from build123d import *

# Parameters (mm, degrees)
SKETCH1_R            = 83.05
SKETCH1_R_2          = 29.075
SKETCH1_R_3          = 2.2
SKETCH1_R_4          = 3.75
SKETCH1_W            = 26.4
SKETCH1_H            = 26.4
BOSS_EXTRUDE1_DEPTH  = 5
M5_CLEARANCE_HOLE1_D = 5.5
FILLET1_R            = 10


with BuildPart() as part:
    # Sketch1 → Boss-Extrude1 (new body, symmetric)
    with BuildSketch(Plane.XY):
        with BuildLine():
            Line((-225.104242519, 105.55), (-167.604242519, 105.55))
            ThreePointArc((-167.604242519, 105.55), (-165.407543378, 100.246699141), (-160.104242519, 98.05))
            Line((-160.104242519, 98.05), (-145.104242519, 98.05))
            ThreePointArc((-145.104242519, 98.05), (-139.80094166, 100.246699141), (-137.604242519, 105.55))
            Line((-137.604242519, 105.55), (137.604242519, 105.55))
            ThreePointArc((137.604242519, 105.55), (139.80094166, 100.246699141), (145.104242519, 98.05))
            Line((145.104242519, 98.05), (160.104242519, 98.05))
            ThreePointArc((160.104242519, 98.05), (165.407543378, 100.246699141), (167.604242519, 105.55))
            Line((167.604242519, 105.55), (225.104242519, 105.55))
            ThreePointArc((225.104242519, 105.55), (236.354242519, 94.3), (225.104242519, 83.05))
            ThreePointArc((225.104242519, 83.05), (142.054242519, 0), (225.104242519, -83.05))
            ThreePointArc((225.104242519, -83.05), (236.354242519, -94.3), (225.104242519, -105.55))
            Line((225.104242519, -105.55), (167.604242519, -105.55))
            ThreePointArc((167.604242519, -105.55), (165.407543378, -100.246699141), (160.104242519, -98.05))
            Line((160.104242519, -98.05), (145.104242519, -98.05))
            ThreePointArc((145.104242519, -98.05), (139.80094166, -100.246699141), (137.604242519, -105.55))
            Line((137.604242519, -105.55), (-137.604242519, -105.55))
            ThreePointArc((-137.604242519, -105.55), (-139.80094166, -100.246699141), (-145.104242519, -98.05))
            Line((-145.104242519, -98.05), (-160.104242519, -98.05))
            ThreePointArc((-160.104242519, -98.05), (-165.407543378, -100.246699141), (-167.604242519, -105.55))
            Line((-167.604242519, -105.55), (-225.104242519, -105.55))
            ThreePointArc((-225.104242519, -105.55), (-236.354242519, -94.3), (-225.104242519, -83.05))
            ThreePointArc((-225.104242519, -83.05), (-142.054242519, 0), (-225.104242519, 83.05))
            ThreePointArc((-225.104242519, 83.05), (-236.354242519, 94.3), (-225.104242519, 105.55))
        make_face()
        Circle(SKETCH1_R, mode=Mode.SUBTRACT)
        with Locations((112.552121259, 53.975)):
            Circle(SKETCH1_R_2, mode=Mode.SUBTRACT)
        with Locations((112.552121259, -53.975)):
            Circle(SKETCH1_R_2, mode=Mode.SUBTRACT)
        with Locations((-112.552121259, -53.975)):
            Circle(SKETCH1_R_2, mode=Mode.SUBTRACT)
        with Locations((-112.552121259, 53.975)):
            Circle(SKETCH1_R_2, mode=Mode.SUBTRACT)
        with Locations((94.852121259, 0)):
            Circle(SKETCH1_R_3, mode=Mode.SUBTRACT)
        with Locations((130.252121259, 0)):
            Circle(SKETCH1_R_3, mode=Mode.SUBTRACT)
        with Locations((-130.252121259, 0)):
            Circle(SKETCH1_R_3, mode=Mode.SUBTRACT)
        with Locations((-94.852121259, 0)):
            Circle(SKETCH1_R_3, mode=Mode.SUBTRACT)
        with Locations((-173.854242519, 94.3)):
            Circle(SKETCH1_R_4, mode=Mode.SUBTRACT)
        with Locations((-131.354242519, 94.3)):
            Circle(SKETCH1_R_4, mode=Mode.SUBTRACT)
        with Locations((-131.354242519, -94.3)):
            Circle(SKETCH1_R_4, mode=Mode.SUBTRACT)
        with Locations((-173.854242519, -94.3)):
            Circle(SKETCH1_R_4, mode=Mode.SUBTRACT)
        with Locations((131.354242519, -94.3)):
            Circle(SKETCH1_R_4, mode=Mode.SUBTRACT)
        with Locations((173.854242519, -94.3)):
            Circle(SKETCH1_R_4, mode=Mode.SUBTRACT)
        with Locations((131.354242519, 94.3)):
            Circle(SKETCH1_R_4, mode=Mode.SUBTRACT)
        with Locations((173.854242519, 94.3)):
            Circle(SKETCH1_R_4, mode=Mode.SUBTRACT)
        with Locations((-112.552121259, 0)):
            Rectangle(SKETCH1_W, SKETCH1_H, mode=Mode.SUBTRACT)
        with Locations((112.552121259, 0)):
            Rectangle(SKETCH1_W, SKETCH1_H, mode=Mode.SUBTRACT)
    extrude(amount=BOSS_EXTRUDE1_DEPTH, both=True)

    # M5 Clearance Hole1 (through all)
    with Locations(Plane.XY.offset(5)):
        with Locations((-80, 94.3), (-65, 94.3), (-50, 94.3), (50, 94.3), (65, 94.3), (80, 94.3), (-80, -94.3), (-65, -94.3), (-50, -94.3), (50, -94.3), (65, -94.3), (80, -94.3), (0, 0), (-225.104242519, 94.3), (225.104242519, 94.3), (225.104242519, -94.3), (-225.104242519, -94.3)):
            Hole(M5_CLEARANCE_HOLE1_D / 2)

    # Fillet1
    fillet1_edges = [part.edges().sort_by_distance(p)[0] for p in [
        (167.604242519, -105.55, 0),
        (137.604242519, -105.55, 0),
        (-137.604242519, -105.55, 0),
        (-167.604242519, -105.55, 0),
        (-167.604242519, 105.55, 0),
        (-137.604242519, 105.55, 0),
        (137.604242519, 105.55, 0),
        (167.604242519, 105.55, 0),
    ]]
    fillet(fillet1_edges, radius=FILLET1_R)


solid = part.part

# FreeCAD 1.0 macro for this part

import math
import FreeCAD as App
import Part
import Sketcher
from FreeCAD import Vector
Q = App.Units.Quantity


def edges_at(feature, points):
    """Names of the edges that pass closest to the given points."""
    edges = feature.Shape.Edges
    near = lambda p: min(range(len(edges)), key=lambda i: edges[i].distToShape(Part.Vertex(*p))[0])
    return sorted({f"Edge{near(p) + 1}" for p in points})

doc = App.newDocument("Part")
params = doc.addObject("Spreadsheet::Sheet", "Params")
for row, (alias, value) in enumerate([
    ("sketch1_diameter", "7.5 mm"),
    ("sketch1_diameter2", "4.4 mm"),
    ("sketch1_diameter3", "166.1 mm"),
    ("sketch1_radius", "7.5 mm"),
    ("sketch1_diameter4", "58.15 mm"),
    ("pad1_length", "10 mm"),
    ("sketch2_diameter", "5.5 mm"),
    ("hole_diameter", "5.5 mm"),
    ("fillet_radius", "10 mm"),
], start=1):
    params.set(f"A{row}", alias)
    params.set(f"B{row}", "=" + value)
    params.setAlias(f"B{row}", alias)

body = doc.addObject("PartDesign::Body", "Body")

sketch1 = body.newObject("Sketcher::SketchObject", "Sketch")
sketch1.AttachmentSupport = (doc.getObject("XY_Plane"), [""])
sketch1.MapMode = "FlatFace"
sketch1.addGeometry([
    Part.LineSegment(Vector(-167.604243, 105.55, 0), Vector(-225.104243, 105.55, 0)),
    Part.ArcOfCircle(Part.Circle(Vector(-225.104243, 94.3, 0), Vector(0, 0, 1), 11.25), math.radians(90), math.radians(270)),
    Part.ArcOfCircle(Part.Circle(Vector(-225.104243, 0, 0), Vector(0, 0, 1), 83.05), math.radians(-90), math.radians(90)),
    Part.ArcOfCircle(Part.Circle(Vector(-225.104243, -94.3, 0), Vector(0, 0, 1), 11.25), math.radians(90), math.radians(270)),
    Part.LineSegment(Vector(-225.104243, -105.55, 0), Vector(-167.604243, -105.55, 0)),
    Part.ArcOfCircle(Part.Circle(Vector(-160.104243, -105.55, 0), Vector(0, 0, 1), 7.5), math.radians(90), math.radians(180)),
    Part.LineSegment(Vector(-160.104243, -98.05, 0), Vector(-145.104243, -98.05, 0)),
    Part.ArcOfCircle(Part.Circle(Vector(-145.104243, -105.55, 0), Vector(0, 0, 1), 7.5), math.radians(0), math.radians(90)),
    Part.LineSegment(Vector(-137.604243, -105.55, 0), Vector(137.604243, -105.55, 0)),
    Part.ArcOfCircle(Part.Circle(Vector(145.104243, -105.55, 0), Vector(0, 0, 1), 7.5), math.radians(90), math.radians(180)),
    Part.LineSegment(Vector(145.104243, -98.05, 0), Vector(160.104243, -98.05, 0)),
    Part.ArcOfCircle(Part.Circle(Vector(160.104243, -105.55, 0), Vector(0, 0, 1), 7.5), math.radians(0), math.radians(90)),
    Part.LineSegment(Vector(167.604243, -105.55, 0), Vector(225.104243, -105.55, 0)),
    Part.ArcOfCircle(Part.Circle(Vector(225.104243, -94.3, 0), Vector(0, 0, 1), 11.25), math.radians(-90), math.radians(90)),
    Part.ArcOfCircle(Part.Circle(Vector(225.104243, 0, 0), Vector(0, 0, 1), 83.05), math.radians(90), math.radians(270)),
    Part.ArcOfCircle(Part.Circle(Vector(225.104243, 94.3, 0), Vector(0, 0, 1), 11.25), math.radians(-90), math.radians(90)),
    Part.LineSegment(Vector(225.104243, 105.55, 0), Vector(167.604243, 105.55, 0)),
    Part.ArcOfCircle(Part.Circle(Vector(160.104243, 105.55, 0), Vector(0, 0, 1), 7.5), math.radians(-90), math.radians(0)),
    Part.LineSegment(Vector(160.104243, 98.05, 0), Vector(145.104243, 98.05, 0)),
    Part.ArcOfCircle(Part.Circle(Vector(145.104243, 105.55, 0), Vector(0, 0, 1), 7.5), math.radians(180), math.radians(270)),
    Part.LineSegment(Vector(137.604243, 105.55, 0), Vector(-137.604243, 105.55, 0)),
    Part.ArcOfCircle(Part.Circle(Vector(-145.104243, 105.55, 0), Vector(0, 0, 1), 7.5), math.radians(-90), math.radians(0)),
    Part.LineSegment(Vector(-145.104243, 98.05, 0), Vector(-160.104243, 98.05, 0)),
    Part.ArcOfCircle(Part.Circle(Vector(-160.104243, 105.55, 0), Vector(0, 0, 1), 7.5), math.radians(180), math.radians(270)),
    Part.Circle(Vector(173.854243, -94.3, 0), Vector(0, 0, 1), 3.75),
    Part.Circle(Vector(131.354243, -94.3, 0), Vector(0, 0, 1), 3.75),
    Part.Circle(Vector(112.552121, -53.975, 0), Vector(0, 0, 1), 29.075),
    Part.Circle(Vector(-131.354243, -94.3, 0), Vector(0, 0, 1), 3.75),
    Part.Circle(Vector(-173.854243, -94.3, 0), Vector(0, 0, 1), 3.75),
    Part.Circle(Vector(-112.552121, -53.975, 0), Vector(0, 0, 1), 29.075),
    Part.Circle(Vector(130.252121, 0, 0), Vector(0, 0, 1), 2.2),
    Part.LineSegment(Vector(99.352121, -13.2, 0), Vector(99.352121, 13.2, 0)),
    Part.LineSegment(Vector(99.352121, 13.2, 0), Vector(125.752121, 13.2, 0)),
    Part.LineSegment(Vector(125.752121, 13.2, 0), Vector(125.752121, -13.2, 0)),
    Part.LineSegment(Vector(125.752121, -13.2, 0), Vector(99.352121, -13.2, 0)),
    Part.Circle(Vector(94.852121, 0, 0), Vector(0, 0, 1), 2.2),
    Part.Circle(Vector(0, 0, 0), Vector(0, 0, 1), 83.05),
    Part.Circle(Vector(112.552121, 53.975, 0), Vector(0, 0, 1), 29.075),
    Part.Circle(Vector(173.854243, 94.3, 0), Vector(0, 0, 1), 3.75),
    Part.Circle(Vector(131.354243, 94.3, 0), Vector(0, 0, 1), 3.75),
    Part.Circle(Vector(-94.852121, 0, 0), Vector(0, 0, 1), 2.2),
    Part.LineSegment(Vector(-125.752121, -13.2, 0), Vector(-125.752121, 13.2, 0)),
    Part.LineSegment(Vector(-125.752121, 13.2, 0), Vector(-99.352121, 13.2, 0)),
    Part.LineSegment(Vector(-99.352121, 13.2, 0), Vector(-99.352121, -13.2, 0)),
    Part.LineSegment(Vector(-99.352121, -13.2, 0), Vector(-125.752121, -13.2, 0)),
    Part.Circle(Vector(-130.252121, 0, 0), Vector(0, 0, 1), 2.2),
    Part.Circle(Vector(-112.552121, 53.975, 0), Vector(0, 0, 1), 29.075),
    Part.Circle(Vector(-131.354243, 94.3, 0), Vector(0, 0, 1), 3.75),
    Part.Circle(Vector(-173.854243, 94.3, 0), Vector(0, 0, 1), 3.75),
], False)
sketch1.addConstraint([
    Sketcher.Constraint("Tangent", 0, 2, 1, 1),
    Sketcher.Constraint("Tangent", 1, 2, 2, 2),
    Sketcher.Constraint("Tangent", 2, 1, 3, 1),
    Sketcher.Constraint("Tangent", 3, 2, 4, 1),
    Sketcher.Constraint("Coincident", 4, 2, 5, 2),
    Sketcher.Constraint("Tangent", 5, 1, 6, 1),
    Sketcher.Constraint("Tangent", 6, 2, 7, 2),
    Sketcher.Constraint("Coincident", 7, 1, 8, 1),
    Sketcher.Constraint("Coincident", 8, 2, 9, 2),
    Sketcher.Constraint("Tangent", 9, 1, 10, 1),
    Sketcher.Constraint("Tangent", 10, 2, 11, 2),
    Sketcher.Constraint("Coincident", 11, 1, 12, 1),
    Sketcher.Constraint("Tangent", 12, 2, 13, 1),
    Sketcher.Constraint("Tangent", 13, 2, 14, 2),
    Sketcher.Constraint("Tangent", 14, 1, 15, 1),
    Sketcher.Constraint("Tangent", 15, 2, 16, 1),
    Sketcher.Constraint("Coincident", 16, 2, 17, 2),
    Sketcher.Constraint("Tangent", 17, 1, 18, 1),
    Sketcher.Constraint("Tangent", 18, 2, 19, 2),
    Sketcher.Constraint("Coincident", 19, 1, 20, 1),
    Sketcher.Constraint("Coincident", 20, 2, 21, 2),
    Sketcher.Constraint("Tangent", 21, 1, 22, 1),
    Sketcher.Constraint("Tangent", 22, 2, 23, 2),
    Sketcher.Constraint("Coincident", 23, 1, 0, 1),
    Sketcher.Constraint("Coincident", 31, 2, 32, 1),
    Sketcher.Constraint("Coincident", 32, 2, 33, 1),
    Sketcher.Constraint("Coincident", 33, 2, 34, 1),
    Sketcher.Constraint("Coincident", 34, 2, 31, 1),
    Sketcher.Constraint("Coincident", 41, 2, 42, 1),
    Sketcher.Constraint("Coincident", 42, 2, 43, 1),
    Sketcher.Constraint("Coincident", 43, 2, 44, 1),
    Sketcher.Constraint("Coincident", 44, 2, 41, 1),
    Sketcher.Constraint("Horizontal", 0),
    Sketcher.Constraint("Horizontal", 4),
    Sketcher.Constraint("Horizontal", 6),
    Sketcher.Constraint("Horizontal", 8),
    Sketcher.Constraint("Horizontal", 10),
    Sketcher.Constraint("Horizontal", 12),
    Sketcher.Constraint("Horizontal", 16),
    Sketcher.Constraint("Horizontal", 18),
    Sketcher.Constraint("Horizontal", 20),
    Sketcher.Constraint("Horizontal", 22),
    Sketcher.Constraint("Vertical", 31),
    Sketcher.Constraint("Horizontal", 32),
    Sketcher.Constraint("Vertical", 33),
    Sketcher.Constraint("Horizontal", 34),
    Sketcher.Constraint("Vertical", 41),
    Sketcher.Constraint("Horizontal", 42),
    Sketcher.Constraint("Vertical", 43),
    Sketcher.Constraint("Horizontal", 44),
    Sketcher.Constraint("Coincident", 36, 3, -1, 1),
    Sketcher.Constraint("Equal", 1, 3),
    Sketcher.Constraint("Equal", 5, 7),
    Sketcher.Constraint("Equal", 7, 9),
    Sketcher.Constraint("Equal", 9, 11),
    Sketcher.Constraint("Equal", 3, 13),
    Sketcher.Constraint("Equal", 2, 14),
    Sketcher.Constraint("Equal", 13, 15),
    Sketcher.Constraint("Equal", 11, 17),
    Sketcher.Constraint("Equal", 17, 19),
    Sketcher.Constraint("Equal", 19, 21),
    Sketcher.Constraint("Equal", 21, 23),
    Sketcher.Constraint("Equal", 24, 25),
    Sketcher.Constraint("Equal", 25, 27),
    Sketcher.Constraint("Equal", 27, 28),
    Sketcher.Constraint("Equal", 26, 29),
    Sketcher.Constraint("Equal", 30, 35),
    Sketcher.Constraint("Equal", 14, 36),
    Sketcher.Constraint("Equal", 29, 37),
    Sketcher.Constraint("Equal", 28, 38),
    Sketcher.Constraint("Equal", 38, 39),
    Sketcher.Constraint("Equal", 35, 40),
    Sketcher.Constraint("Equal", 40, 45),
    Sketcher.Constraint("Equal", 37, 46),
    Sketcher.Constraint("Equal", 39, 47),
    Sketcher.Constraint("Equal", 47, 48),
    Sketcher.Constraint("Symmetric", 1, 3, 13, 3, -1, 1),
    Sketcher.Constraint("Symmetric", 5, 3, 17, 3, -1, 1),
    Sketcher.Constraint("Symmetric", 9, 3, 21, 3, -1, 1),
    Sketcher.Constraint("Symmetric", 29, 3, 37, 3, -1, 1),
    Sketcher.Constraint("Symmetric", 28, 3, 38, 3, -1, 1),
    Sketcher.Constraint("Symmetric", 27, 3, 39, 3, -1, 1),
    Sketcher.Constraint("Symmetric", 35, 3, 40, 3, -1, 1),
    Sketcher.Constraint("Symmetric", 30, 3, 45, 3, -1, 1),
    Sketcher.Constraint("Symmetric", 26, 3, 46, 3, -1, 1),
    Sketcher.Constraint("Symmetric", 25, 3, 47, 3, -1, 1),
    Sketcher.Constraint("Symmetric", 24, 3, 48, 3, -1, 1),
    Sketcher.Constraint("Symmetric", 7, 1, 19, 1, -1, 1),
    Sketcher.Constraint("Symmetric", 33, 2, 41, 2, -1, 1),
    Sketcher.Constraint("Symmetric", 31, 2, 43, 2, -1, 1),
    Sketcher.Constraint("Symmetric", 7, 3, 9, 3, -2),
    Sketcher.Constraint("Symmetric", 3, 3, 13, 3, -2),
    Sketcher.Constraint("Symmetric", 25, 3, 27, 3, -2),
    Sketcher.Constraint("Symmetric", 24, 3, 28, 3, -2),
    Sketcher.Constraint("Symmetric", 26, 3, 29, 3, -2),
    Sketcher.Constraint("PointOnObject", 30, 3, -1),
    Sketcher.Constraint("PointOnObject", 35, 3, -1),
    Sketcher.Constraint("Horizontal", 13, 3, 24, 3),
    Sketcher.Constraint("Horizontal", 24, 3, 25, 3),
    Sketcher.Constraint("Horizontal", 23, 3, 0, 2),
    Sketcher.Constraint("Horizontal", 4, 2, 7, 1),
    Sketcher.Constraint("Horizontal", 32, 2, 41, 2),
    Sketcher.Constraint("Vertical", 1, 3, 2, 3),
    Sketcher.Constraint("Vertical", 13, 3, 14, 3),
    Sketcher.Constraint("Vertical", 14, 3, 15, 3),
    Sketcher.Constraint("Vertical", 11, 3, 17, 3),
    Sketcher.Constraint("Vertical", 5, 3, 23, 3),
    Sketcher.Constraint("Equal", 44, 31),
    Sketcher.Constraint("Diameter", 24, Q("7.5 mm")),
    Sketcher.Constraint("Diameter", 30, Q("4.4 mm")),
    Sketcher.Constraint("Diameter", 36, Q("166.1 mm")),
    Sketcher.Constraint("Radius", 5, Q("7.5 mm")),
    Sketcher.Constraint("Diameter", 26, Q("58.15 mm")),
    Sketcher.Constraint("DistanceX", 6, 1, 6, 2, Q("15 mm")),
    Sketcher.Constraint("Radius", 1, Q("11.25 mm")),
    Sketcher.Constraint("DistanceX", 0, 2, 0, 1, Q("57.5 mm")),
    Sketcher.Constraint("DistanceX", 32, 1, 32, 2, Q("26.4 mm")),
    Sketcher.Constraint("DistanceY", 26, 3, -1, 1, Q("53.975 mm")),
    Sketcher.Constraint("DistanceX", 8, 1, 8, 2, Q("275.208485 mm")),
    Sketcher.Constraint("DistanceX", -1, 1, 26, 3, Q("112.552121 mm")),
    Sketcher.Constraint("DistanceX", -1, 1, 30, 3, Q("130.252121 mm")),
    Sketcher.Constraint("DistanceX", -1, 1, 35, 3, Q("94.852121 mm")),
    Sketcher.Constraint("DistanceX", -1, 1, 31, 2, Q("99.352121 mm")),
    Sketcher.Constraint("DistanceX", -1, 1, 24, 3, Q("173.854243 mm")),
    Sketcher.Constraint("DistanceX", -1, 1, 25, 3, Q("131.354243 mm")),
])
sketch1.setExpression("Constraints[108]", "Params.sketch1_diameter")
sketch1.setExpression("Constraints[109]", "Params.sketch1_diameter2")
sketch1.setExpression("Constraints[110]", "Params.sketch1_diameter3")
sketch1.setExpression("Constraints[111]", "Params.sketch1_radius")
sketch1.setExpression("Constraints[112]", "Params.sketch1_diameter4")
pad1 = body.newObject("PartDesign::Pad", "Pad")
pad1.Profile = sketch1
pad1.setExpression("Length", "Params.pad1_length")
pad1.Midplane = True

sketch2 = body.newObject("Sketcher::SketchObject", "Sketch001")
sketch2.AttachmentSupport = (doc.getObject("XY_Plane"), [""])
sketch2.MapMode = "FlatFace"
sketch2.AttachmentOffset = App.Placement(Vector(0, 0, 5), App.Rotation())
sketch2.addGeometry([
    Part.Circle(Vector(-80, 94.3, 0), Vector(0, 0, 1), 2.75),
    Part.Circle(Vector(-65, 94.3, 0), Vector(0, 0, 1), 2.75),
    Part.Circle(Vector(-50, 94.3, 0), Vector(0, 0, 1), 2.75),
    Part.Circle(Vector(50, 94.3, 0), Vector(0, 0, 1), 2.75),
    Part.Circle(Vector(65, 94.3, 0), Vector(0, 0, 1), 2.75),
    Part.Circle(Vector(80, 94.3, 0), Vector(0, 0, 1), 2.75),
    Part.Circle(Vector(-80, -94.3, 0), Vector(0, 0, 1), 2.75),
    Part.Circle(Vector(-65, -94.3, 0), Vector(0, 0, 1), 2.75),
    Part.Circle(Vector(-50, -94.3, 0), Vector(0, 0, 1), 2.75),
    Part.Circle(Vector(50, -94.3, 0), Vector(0, 0, 1), 2.75),
    Part.Circle(Vector(65, -94.3, 0), Vector(0, 0, 1), 2.75),
    Part.Circle(Vector(80, -94.3, 0), Vector(0, 0, 1), 2.75),
    Part.Circle(Vector(0, 0, 0), Vector(0, 0, 1), 2.75),
    Part.Circle(Vector(-225.104243, 94.3, 0), Vector(0, 0, 1), 2.75),
    Part.Circle(Vector(225.104243, 94.3, 0), Vector(0, 0, 1), 2.75),
    Part.Circle(Vector(225.104243, -94.3, 0), Vector(0, 0, 1), 2.75),
    Part.Circle(Vector(-225.104243, -94.3, 0), Vector(0, 0, 1), 2.75),
], False)
sketch2.addConstraint([
    Sketcher.Constraint("Coincident", 12, 3, -1, 1),
    Sketcher.Constraint("Equal", 0, 1),
    Sketcher.Constraint("Equal", 1, 2),
    Sketcher.Constraint("Equal", 2, 3),
    Sketcher.Constraint("Equal", 3, 4),
    Sketcher.Constraint("Equal", 4, 5),
    Sketcher.Constraint("Equal", 5, 6),
    Sketcher.Constraint("Equal", 6, 7),
    Sketcher.Constraint("Equal", 7, 8),
    Sketcher.Constraint("Equal", 8, 9),
    Sketcher.Constraint("Equal", 9, 10),
    Sketcher.Constraint("Equal", 10, 11),
    Sketcher.Constraint("Equal", 11, 12),
    Sketcher.Constraint("Equal", 12, 13),
    Sketcher.Constraint("Equal", 13, 14),
    Sketcher.Constraint("Equal", 14, 15),
    Sketcher.Constraint("Equal", 15, 16),
    Sketcher.Constraint("Symmetric", 5, 3, 6, 3, -1, 1),
    Sketcher.Constraint("Symmetric", 4, 3, 7, 3, -1, 1),
    Sketcher.Constraint("Symmetric", 3, 3, 8, 3, -1, 1),
    Sketcher.Constraint("Symmetric", 2, 3, 9, 3, -1, 1),
    Sketcher.Constraint("Symmetric", 1, 3, 10, 3, -1, 1),
    Sketcher.Constraint("Symmetric", 0, 3, 11, 3, -1, 1),
    Sketcher.Constraint("Symmetric", 13, 3, 15, 3, -1, 1),
    Sketcher.Constraint("Symmetric", 14, 3, 16, 3, -1, 1),
    Sketcher.Constraint("Symmetric", 2, 3, 3, 3, -2),
    Sketcher.Constraint("Symmetric", 1, 3, 4, 3, -2),
    Sketcher.Constraint("Symmetric", 0, 3, 5, 3, -2),
    Sketcher.Constraint("Symmetric", 13, 3, 14, 3, -2),
    Sketcher.Constraint("Horizontal", 0, 3, 1, 3),
    Sketcher.Constraint("Horizontal", 1, 3, 2, 3),
    Sketcher.Constraint("Horizontal", 5, 3, 13, 3),
    Sketcher.Constraint("Diameter", 0, Q("5.5 mm")),
    Sketcher.Constraint("DistanceX", 0, 3, -1, 1, Q("80 mm")),
    Sketcher.Constraint("DistanceX", 1, 3, -1, 1, Q("65 mm")),
    Sketcher.Constraint("DistanceX", 2, 3, -1, 1, Q("50 mm")),
    Sketcher.Constraint("DistanceY", -1, 1, 0, 3, Q("94.3 mm")),
    Sketcher.Constraint("DistanceX", 13, 3, -1, 1, Q("225.104243 mm")),
])
sketch2.setExpression("Constraints[32]", "Params.sketch2_diameter")
doc.recompute()
hole = body.newObject("PartDesign::Hole", "Hole")
hole.Profile = sketch2
hole.ThreadType = "None"
hole.setExpression("Diameter", "Params.hole_diameter")
hole.DepthType = "ThroughAll"
doc.recompute()

fillet = body.newObject("PartDesign::Fillet", "Fillet")
fillet.Base = (hole, edges_at(hole, [
    (167.604, -105.55, 0),
    (137.604, -105.55, 0),
    (-137.604, -105.55, 0),
    (-167.604, -105.55, 0),
    (-167.604, 105.55, 0),
    (-137.604, 105.55, 0),
    (137.604, 105.55, 0),
    (167.604, 105.55, 0),
]))
fillet.setExpression("Radius", "Params.fillet_radius")

doc.recompute()
